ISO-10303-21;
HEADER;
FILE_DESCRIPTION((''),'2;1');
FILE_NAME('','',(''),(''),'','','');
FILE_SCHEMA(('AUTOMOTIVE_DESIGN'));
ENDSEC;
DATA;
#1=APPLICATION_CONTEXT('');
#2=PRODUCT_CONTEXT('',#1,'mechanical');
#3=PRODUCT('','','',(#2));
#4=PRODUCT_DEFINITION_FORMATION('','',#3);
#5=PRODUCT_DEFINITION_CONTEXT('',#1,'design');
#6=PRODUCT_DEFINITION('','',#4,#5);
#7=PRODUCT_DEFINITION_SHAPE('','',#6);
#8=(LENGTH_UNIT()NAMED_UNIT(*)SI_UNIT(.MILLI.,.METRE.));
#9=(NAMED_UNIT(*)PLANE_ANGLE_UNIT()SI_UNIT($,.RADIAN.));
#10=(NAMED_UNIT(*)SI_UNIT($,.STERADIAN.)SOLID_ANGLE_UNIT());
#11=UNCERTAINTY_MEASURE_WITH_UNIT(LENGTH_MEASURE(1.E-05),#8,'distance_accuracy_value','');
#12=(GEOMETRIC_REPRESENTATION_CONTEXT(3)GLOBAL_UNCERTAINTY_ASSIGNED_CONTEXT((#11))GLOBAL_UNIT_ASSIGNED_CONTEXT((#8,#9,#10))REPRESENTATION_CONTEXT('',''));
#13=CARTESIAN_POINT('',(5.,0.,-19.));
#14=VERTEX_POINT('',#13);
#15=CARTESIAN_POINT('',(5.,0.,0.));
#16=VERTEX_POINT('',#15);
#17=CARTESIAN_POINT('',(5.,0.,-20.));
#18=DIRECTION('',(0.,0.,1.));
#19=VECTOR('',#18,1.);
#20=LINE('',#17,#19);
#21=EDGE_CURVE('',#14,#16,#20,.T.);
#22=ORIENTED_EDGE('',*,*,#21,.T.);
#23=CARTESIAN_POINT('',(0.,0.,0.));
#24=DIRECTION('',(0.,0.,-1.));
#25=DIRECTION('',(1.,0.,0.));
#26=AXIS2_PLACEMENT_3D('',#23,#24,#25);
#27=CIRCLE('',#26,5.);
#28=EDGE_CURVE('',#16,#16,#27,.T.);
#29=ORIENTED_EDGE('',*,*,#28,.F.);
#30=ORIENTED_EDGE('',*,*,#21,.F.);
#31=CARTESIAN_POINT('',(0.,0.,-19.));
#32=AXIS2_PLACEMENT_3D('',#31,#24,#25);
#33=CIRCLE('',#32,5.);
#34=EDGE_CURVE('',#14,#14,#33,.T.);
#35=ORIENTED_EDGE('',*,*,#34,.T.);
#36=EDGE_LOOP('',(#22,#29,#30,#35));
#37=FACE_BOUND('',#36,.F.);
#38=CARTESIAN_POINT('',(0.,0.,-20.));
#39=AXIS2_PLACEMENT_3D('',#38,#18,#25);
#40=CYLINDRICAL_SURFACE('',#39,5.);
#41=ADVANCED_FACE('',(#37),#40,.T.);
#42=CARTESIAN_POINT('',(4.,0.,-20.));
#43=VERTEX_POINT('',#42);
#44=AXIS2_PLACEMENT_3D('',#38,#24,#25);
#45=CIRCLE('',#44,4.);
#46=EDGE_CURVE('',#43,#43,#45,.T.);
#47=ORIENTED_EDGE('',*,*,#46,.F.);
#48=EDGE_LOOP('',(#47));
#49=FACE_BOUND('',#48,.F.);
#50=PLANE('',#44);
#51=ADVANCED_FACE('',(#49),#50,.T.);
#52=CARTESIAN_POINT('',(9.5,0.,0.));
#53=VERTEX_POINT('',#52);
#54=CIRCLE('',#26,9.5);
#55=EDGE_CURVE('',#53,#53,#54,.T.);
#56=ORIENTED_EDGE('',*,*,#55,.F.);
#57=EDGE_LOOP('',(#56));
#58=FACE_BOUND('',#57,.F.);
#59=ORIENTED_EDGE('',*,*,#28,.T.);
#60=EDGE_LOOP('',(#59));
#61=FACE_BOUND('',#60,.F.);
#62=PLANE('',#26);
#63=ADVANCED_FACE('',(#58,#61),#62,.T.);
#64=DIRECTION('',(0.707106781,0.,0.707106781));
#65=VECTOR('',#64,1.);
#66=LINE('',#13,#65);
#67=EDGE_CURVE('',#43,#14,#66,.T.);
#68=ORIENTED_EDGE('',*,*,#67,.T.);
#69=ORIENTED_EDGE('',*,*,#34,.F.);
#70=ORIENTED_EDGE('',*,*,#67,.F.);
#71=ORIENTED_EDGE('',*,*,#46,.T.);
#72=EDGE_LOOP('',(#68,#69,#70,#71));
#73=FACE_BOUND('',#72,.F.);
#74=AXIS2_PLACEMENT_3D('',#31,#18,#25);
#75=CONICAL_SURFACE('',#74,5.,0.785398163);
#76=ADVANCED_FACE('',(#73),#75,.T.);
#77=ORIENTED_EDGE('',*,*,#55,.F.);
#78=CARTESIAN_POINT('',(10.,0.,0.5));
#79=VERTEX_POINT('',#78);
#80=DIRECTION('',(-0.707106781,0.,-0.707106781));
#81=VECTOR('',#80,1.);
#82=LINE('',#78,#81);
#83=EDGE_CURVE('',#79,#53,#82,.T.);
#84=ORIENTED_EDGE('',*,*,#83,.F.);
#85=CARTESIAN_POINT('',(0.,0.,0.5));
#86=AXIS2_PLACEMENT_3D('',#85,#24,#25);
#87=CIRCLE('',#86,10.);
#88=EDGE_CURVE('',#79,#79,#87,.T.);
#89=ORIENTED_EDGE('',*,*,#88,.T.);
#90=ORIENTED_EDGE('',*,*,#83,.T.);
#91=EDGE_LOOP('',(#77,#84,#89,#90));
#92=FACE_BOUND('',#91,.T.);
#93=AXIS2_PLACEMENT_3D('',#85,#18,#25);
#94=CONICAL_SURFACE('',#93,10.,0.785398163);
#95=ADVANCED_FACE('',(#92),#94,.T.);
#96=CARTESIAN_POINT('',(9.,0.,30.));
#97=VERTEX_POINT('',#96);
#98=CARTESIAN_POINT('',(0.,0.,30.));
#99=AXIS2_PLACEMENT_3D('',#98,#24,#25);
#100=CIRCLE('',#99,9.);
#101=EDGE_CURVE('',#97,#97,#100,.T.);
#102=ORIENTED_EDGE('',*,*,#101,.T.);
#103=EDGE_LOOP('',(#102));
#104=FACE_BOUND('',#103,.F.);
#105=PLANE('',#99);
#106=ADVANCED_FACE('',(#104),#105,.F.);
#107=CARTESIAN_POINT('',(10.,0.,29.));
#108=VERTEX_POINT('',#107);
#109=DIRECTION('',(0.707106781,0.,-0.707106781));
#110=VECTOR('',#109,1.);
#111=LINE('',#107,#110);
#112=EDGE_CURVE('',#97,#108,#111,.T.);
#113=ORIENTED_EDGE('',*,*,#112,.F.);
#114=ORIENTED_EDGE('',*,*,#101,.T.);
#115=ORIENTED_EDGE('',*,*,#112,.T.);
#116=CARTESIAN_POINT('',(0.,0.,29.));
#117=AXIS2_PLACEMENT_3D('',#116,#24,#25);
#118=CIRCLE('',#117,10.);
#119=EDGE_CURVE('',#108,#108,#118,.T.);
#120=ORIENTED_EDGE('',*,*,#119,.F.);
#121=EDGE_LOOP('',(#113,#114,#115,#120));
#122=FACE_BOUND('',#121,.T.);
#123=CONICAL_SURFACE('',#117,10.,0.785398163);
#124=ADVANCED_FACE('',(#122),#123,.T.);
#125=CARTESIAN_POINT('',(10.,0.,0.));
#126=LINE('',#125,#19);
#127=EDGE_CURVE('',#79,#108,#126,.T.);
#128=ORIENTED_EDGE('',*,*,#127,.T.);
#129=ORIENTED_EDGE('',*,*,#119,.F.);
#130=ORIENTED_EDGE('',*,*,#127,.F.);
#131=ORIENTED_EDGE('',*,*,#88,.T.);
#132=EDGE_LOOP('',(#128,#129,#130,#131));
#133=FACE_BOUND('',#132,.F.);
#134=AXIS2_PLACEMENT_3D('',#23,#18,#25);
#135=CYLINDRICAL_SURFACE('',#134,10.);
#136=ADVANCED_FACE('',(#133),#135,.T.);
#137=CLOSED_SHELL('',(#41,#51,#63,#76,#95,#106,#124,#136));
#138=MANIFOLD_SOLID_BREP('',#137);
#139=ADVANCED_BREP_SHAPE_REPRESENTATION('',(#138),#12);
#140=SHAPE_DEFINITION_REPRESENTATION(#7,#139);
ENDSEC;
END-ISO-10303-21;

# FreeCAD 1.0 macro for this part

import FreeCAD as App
import Part
import Sketcher

V = App.Vector
Q = App.Units.Quantity


def edges_at(feature, points):
    """Names of the edges that pass closest to the given points."""
    edges = feature.Shape.Edges
    near = lambda p: min(range(len(edges)), key=lambda i: edges[i].distToShape(Part.Vertex(*p))[0])
    return sorted({f"Edge{near(p) + 1}" for p in points})

doc = App.newDocument("Part")
params = doc.addObject("Spreadsheet::Sheet", "Params")
for row, (alias, value) in enumerate([
    ("sketch1_width", "10 mm"),
    ("sketch1_height", "50 mm"),
    ("sketch1_height2", "20 mm"),
    ("revolution_angle", "360 deg"),
    ("chamfer_size", "1 mm"),
    ("chamfer2_size", "0.5 mm"),
], start=1):
    params.set(f"A{row}", alias)
    params.set(f"B{row}", "=" + value)
    params.setAlias(f"B{row}", alias)

body = doc.addObject("PartDesign::Body", "Body")

sketch1 = body.newObject("Sketcher::SketchObject", "Sketch")
sketch1.AttachmentSupport = (doc.getObject("XZ_Plane"), [""])
sketch1.MapMode = "FlatFace"
sketch1.addGeometry(Part.LineSegment(V(10, 30, 0), V(0, 30, 0)), False)
sketch1.addGeometry(Part.LineSegment(V(0, 30, 0), V(0, -20, 0)), False)
sketch1.addGeometry(Part.LineSegment(V(0, -20, 0), V(5, -20, 0)), False)
sketch1.addGeometry(Part.LineSegment(V(5, -20, 0), V(5, 0, 0)), False)
sketch1.addGeometry(Part.LineSegment(V(5, 0, 0), V(10, 0, 0)), False)
sketch1.addGeometry(Part.LineSegment(V(10, 0, 0), V(10, 30, 0)), False)
sketch1.addConstraint(Sketcher.Constraint("Coincident", 0, 2, 1, 1))
sketch1.addConstraint(Sketcher.Constraint("Coincident", 1, 2, 2, 1))
sketch1.addConstraint(Sketcher.Constraint("Coincident", 2, 2, 3, 1))
sketch1.addConstraint(Sketcher.Constraint("Coincident", 3, 2, 4, 1))
sketch1.addConstraint(Sketcher.Constraint("Coincident", 4, 2, 5, 1))
sketch1.addConstraint(Sketcher.Constraint("Coincident", 5, 2, 0, 1))
sketch1.addConstraint(Sketcher.Constraint("Horizontal", 0))
sketch1.addConstraint(Sketcher.Constraint("Vertical", 1))
sketch1.addConstraint(Sketcher.Constraint("Horizontal", 2))
sketch1.addConstraint(Sketcher.Constraint("Vertical", 3))
sketch1.addConstraint(Sketcher.Constraint("Horizontal", 4))
sketch1.addConstraint(Sketcher.Constraint("Vertical", 5))
sketch1.addConstraint(Sketcher.Constraint("PointOnObject", 0, 2, -2))
sketch1.addConstraint(Sketcher.Constraint("PointOnObject", 3, 2, -1))
sketch1.addConstraint(Sketcher.Constraint("Equal", 2, 4))
sketch1.addConstraint(Sketcher.Constraint("DistanceX", 0, 2, 0, 1, Q("10 mm")))
sketch1.addConstraint(Sketcher.Constraint("DistanceY", 1, 2, 1, 1, Q("50 mm")))
sketch1.addConstraint(Sketcher.Constraint("DistanceY", 3, 1, 3, 2, Q("20 mm")))
sketch1.setExpression("Constraints[15]", "Params.sketch1_width")
sketch1.setExpression("Constraints[16]", "Params.sketch1_height")
sketch1.setExpression("Constraints[17]", "Params.sketch1_height2")
revolution = body.newObject("PartDesign::Revolution", "Revolution")
revolution.Profile = sketch1
revolution.ReferenceAxis = (sketch1, ["V_Axis"])
revolution.setExpression("Angle", "Params.revolution_angle")
doc.recompute()

chamfer = body.newObject("PartDesign::Chamfer", "Chamfer")
chamfer.Base = (revolution, edges_at(revolution, [(-10, 0, 30), (-5, 0, -20)]))
chamfer.setExpression("Size", "Params.chamfer_size")
doc.recompute()

chamfer2 = body.newObject("PartDesign::Chamfer", "Chamfer001")
chamfer2.Base = (chamfer, edges_at(chamfer, [(-10, 0, 0)]))
chamfer2.setExpression("Size", "Params.chamfer2_size")

doc.recompute()
